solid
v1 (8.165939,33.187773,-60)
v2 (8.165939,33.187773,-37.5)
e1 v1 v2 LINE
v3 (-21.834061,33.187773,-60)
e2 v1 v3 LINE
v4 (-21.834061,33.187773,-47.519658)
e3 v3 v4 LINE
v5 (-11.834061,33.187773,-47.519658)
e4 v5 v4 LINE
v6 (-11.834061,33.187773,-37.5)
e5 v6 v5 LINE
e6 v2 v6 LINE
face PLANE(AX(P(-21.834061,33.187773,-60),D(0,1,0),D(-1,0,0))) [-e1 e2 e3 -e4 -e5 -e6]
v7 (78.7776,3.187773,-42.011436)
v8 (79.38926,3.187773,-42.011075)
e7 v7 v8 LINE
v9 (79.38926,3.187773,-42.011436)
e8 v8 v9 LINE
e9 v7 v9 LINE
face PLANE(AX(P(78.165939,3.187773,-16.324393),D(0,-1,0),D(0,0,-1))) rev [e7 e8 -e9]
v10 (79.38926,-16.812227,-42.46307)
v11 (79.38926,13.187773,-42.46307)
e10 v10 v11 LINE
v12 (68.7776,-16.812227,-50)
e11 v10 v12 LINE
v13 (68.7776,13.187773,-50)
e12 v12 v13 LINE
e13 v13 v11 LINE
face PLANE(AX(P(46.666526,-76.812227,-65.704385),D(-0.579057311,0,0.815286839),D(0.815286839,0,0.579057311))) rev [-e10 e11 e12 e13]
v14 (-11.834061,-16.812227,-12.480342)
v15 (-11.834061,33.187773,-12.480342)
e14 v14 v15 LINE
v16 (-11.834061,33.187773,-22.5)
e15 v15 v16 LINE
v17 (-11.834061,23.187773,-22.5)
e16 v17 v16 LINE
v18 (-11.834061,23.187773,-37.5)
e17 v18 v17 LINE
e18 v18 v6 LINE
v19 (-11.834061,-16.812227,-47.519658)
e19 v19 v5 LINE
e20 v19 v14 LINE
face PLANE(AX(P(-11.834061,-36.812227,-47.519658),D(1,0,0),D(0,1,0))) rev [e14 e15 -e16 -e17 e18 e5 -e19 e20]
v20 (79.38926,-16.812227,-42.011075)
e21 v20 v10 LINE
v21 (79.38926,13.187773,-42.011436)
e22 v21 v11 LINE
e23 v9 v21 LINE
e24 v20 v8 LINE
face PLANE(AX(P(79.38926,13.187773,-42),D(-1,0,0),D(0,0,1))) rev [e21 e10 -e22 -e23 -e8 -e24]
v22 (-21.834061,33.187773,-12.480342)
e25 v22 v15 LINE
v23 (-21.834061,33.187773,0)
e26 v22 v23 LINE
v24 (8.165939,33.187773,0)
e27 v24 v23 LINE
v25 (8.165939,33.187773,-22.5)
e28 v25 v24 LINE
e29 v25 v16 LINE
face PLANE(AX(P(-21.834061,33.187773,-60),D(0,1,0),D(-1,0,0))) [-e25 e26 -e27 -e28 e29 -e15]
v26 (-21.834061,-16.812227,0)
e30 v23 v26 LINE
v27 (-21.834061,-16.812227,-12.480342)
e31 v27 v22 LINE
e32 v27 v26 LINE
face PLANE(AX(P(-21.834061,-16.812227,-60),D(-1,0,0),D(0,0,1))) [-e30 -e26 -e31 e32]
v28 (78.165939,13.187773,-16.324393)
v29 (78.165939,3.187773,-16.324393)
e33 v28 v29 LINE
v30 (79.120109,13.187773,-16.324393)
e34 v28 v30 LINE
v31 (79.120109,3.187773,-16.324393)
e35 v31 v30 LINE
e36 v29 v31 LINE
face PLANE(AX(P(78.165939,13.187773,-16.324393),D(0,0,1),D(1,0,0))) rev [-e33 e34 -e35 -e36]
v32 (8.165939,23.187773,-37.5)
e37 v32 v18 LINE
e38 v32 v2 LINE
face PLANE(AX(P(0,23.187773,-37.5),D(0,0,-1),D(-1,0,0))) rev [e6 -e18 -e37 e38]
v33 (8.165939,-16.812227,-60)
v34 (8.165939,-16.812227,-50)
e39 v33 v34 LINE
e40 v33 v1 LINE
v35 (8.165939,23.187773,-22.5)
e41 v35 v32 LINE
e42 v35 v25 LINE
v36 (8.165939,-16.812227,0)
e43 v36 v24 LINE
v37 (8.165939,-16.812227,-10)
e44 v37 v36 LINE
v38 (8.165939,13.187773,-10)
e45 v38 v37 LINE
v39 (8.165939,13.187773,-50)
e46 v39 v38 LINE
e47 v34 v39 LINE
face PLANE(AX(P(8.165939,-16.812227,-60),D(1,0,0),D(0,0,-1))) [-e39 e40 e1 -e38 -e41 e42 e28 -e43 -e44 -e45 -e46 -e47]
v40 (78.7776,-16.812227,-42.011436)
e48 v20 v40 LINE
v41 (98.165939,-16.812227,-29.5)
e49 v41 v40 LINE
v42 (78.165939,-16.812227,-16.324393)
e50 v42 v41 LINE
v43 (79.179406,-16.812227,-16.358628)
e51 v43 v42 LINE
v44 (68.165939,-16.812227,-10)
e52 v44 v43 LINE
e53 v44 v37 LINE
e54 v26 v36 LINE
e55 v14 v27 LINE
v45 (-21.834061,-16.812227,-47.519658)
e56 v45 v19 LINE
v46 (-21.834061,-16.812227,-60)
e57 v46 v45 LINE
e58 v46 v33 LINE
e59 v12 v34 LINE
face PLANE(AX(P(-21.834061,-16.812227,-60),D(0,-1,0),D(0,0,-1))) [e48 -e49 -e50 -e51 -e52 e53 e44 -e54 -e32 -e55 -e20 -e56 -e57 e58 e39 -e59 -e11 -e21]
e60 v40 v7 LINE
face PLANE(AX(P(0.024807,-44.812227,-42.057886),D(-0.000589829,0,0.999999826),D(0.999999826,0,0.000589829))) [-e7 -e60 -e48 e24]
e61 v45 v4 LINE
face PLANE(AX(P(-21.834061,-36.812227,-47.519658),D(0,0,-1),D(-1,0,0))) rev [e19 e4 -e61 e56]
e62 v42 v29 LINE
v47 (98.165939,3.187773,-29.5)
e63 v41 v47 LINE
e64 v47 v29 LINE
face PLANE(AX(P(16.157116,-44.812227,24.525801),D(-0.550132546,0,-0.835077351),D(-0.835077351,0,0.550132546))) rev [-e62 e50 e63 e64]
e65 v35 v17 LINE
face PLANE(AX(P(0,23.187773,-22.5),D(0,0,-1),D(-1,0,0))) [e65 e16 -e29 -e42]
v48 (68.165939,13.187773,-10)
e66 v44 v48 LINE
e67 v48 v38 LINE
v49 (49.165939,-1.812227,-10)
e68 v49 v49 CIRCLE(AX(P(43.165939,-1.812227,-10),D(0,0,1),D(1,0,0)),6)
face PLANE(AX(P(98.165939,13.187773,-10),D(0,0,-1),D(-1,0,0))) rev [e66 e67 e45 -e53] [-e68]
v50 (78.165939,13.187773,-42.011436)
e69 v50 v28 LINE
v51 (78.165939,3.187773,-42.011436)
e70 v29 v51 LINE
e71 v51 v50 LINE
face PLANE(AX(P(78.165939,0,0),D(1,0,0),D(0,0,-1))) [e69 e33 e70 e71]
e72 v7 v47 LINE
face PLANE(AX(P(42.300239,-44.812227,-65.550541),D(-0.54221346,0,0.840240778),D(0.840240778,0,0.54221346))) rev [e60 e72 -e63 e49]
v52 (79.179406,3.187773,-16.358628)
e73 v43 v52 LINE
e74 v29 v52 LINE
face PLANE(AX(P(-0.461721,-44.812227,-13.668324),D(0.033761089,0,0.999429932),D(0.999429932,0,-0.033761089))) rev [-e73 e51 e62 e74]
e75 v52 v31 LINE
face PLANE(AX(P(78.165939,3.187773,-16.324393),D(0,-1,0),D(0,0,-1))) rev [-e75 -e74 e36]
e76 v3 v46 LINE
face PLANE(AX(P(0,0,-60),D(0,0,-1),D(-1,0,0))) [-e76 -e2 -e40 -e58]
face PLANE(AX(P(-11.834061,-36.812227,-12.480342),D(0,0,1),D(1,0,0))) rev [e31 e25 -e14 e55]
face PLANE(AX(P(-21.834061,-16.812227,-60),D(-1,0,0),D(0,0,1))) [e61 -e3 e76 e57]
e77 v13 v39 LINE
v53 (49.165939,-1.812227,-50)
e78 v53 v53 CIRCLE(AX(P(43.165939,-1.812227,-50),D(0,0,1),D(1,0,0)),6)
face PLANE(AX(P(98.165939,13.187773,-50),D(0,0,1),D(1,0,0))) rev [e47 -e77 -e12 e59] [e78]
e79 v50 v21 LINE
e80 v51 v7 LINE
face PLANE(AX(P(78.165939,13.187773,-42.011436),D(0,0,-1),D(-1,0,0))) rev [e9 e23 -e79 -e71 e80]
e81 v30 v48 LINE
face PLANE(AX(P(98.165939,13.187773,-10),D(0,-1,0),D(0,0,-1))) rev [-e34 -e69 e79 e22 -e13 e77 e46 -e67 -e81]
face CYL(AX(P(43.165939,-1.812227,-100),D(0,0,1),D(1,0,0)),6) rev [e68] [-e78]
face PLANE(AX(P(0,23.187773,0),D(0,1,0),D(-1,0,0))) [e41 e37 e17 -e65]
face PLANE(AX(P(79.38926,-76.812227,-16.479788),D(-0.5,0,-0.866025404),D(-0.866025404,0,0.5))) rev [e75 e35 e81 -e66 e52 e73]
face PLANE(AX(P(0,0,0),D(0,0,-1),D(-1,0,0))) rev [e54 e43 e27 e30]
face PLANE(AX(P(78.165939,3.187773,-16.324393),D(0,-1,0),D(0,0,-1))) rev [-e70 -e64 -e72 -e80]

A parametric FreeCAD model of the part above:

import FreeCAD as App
import Part
import Sketcher
Q = App.Units.Quantity

doc = App.newDocument("Part")
body = doc.addObject("PartDesign::Body", "Body")

sketch1 = body.newObject("Sketcher::SketchObject", "Sketch")
sketch1.AttachmentSupport = (doc.getObject("XY_Plane"), [""])
sketch1.MapMode = "FlatFace"
sketch1.addGeometry([
    Part.LineSegment(App.Vector(-21.834061, 33.187773, 0), App.Vector(-21.834061, -16.812227, 0)),
    Part.LineSegment(App.Vector(-21.834061, -16.812227, 0), App.Vector(8.165939, -16.812227, 0)),
    Part.LineSegment(App.Vector(8.165939, -16.812227, 0), App.Vector(8.165939, 33.187773, 0)),
    Part.LineSegment(App.Vector(8.165939, 33.187773, 0), App.Vector(-21.834061, 33.187773, 0)),
], False)
sketch1.addConstraint([
    Sketcher.Constraint("Coincident", 0, 2, 1, 1),
    Sketcher.Constraint("Coincident", 1, 2, 2, 1),
    Sketcher.Constraint("Coincident", 2, 2, 3, 1),
    Sketcher.Constraint("Coincident", 3, 2, 0, 1),
    Sketcher.Constraint("Vertical", 0),
    Sketcher.Constraint("Horizontal", 1),
    Sketcher.Constraint("Vertical", 2),
    Sketcher.Constraint("Horizontal", 3),
    Sketcher.Constraint("DistanceX", 1, 1, 1, 2, 30.0),
    Sketcher.Constraint("DistanceY", 0, 2, 0, 1, 50.0),
    Sketcher.Constraint("DistanceX", 0, 2, -1, 1, 21.834061),
    Sketcher.Constraint("DistanceY", 0, 2, -1, 1, 16.812227),
])
pad1 = body.newObject("PartDesign::Pad", "Pad")
pad1.Profile = sketch1
pad1.Length = 60
pad1.Reversed = True

sketch2 = body.newObject("Sketcher::SketchObject", "Sketch001")
sketch2.AttachmentSupport = (doc.getObject("YZ_Plane"), [""])
sketch2.MapMode = "FlatFace"
sketch2.AttachmentOffset = App.Placement(App.Vector(0, 0, 8.165939), App.Rotation())
sketch2.addGeometry([
    Part.LineSegment(App.Vector(13.187773, -10, 0), App.Vector(-16.812227, -10, 0)),
    Part.LineSegment(App.Vector(-16.812227, -10, 0), App.Vector(-16.812227, -50, 0)),
    Part.LineSegment(App.Vector(-16.812227, -50, 0), App.Vector(13.187773, -50, 0)),
    Part.LineSegment(App.Vector(13.187773, -50, 0), App.Vector(13.187773, -10, 0)),
], False)
sketch2.addConstraint([
    Sketcher.Constraint("Coincident", 0, 2, 1, 1),
    Sketcher.Constraint("Coincident", 1, 2, 2, 1),
    Sketcher.Constraint("Coincident", 2, 2, 3, 1),
    Sketcher.Constraint("Coincident", 3, 2, 0, 1),
    Sketcher.Constraint("Horizontal", 0),
    Sketcher.Constraint("Vertical", 1),
    Sketcher.Constraint("Horizontal", 2),
    Sketcher.Constraint("Vertical", 3),
    Sketcher.Constraint("DistanceX", 0, 2, 0, 1, 30.0),
    Sketcher.Constraint("DistanceY", 1, 2, 1, 1, 40.0),
    Sketcher.Constraint("DistanceY", 0, 2, -1, 1, 10.0),
    Sketcher.Constraint("DistanceX", 0, 2, -1, 1, 16.812227),
])
pad2 = body.newObject("PartDesign::Pad", "Pad001")
pad2.Profile = sketch2
pad2.Length = 90

sketch3 = body.newObject("Sketcher::SketchObject", "Sketch002")
sketch3.AttachmentSupport = (doc.getObject("XY_Plane"), [""])
sketch3.MapMode = "FlatFace"
sketch3.AttachmentOffset = App.Placement(App.Vector(0, 0, -10), App.Rotation())
sketch3.addGeometry(Part.Circle(App.Vector(43.165939, -1.812227, 0), App.Vector(0, 0, 1), 6), False)
sketch3.addConstraint([
    Sketcher.Constraint("Diameter", 0, 12.0),
    Sketcher.Constraint("DistanceX", -1, 1, 0, 3, 43.165939),
    Sketcher.Constraint("DistanceY", 0, 3, -1, 1, 1.812227),
])
pocket1 = body.newObject("PartDesign::Pocket", "Pocket")
pocket1.Profile = sketch3
pocket1.Length = 90

sketch4 = body.newObject("Sketcher::SketchObject", "Sketch003")
sketch4.AttachmentSupport = (doc.getObject("XZ_Plane"), [""])
sketch4.MapMode = "FlatFace"
sketch4.AttachmentOffset = App.Placement(App.Vector(0, 0, -13.187773), App.Rotation())
sketch4.addGeometry([
    Part.LineSegment(App.Vector(79.38926, -50, 0), App.Vector(68.7776, -50, 0)),
    Part.LineSegment(App.Vector(68.7776, -50, 0), App.Vector(79.38926, -42.46307, 0)),
    Part.LineSegment(App.Vector(79.38926, -42.46307, 0), App.Vector(79.38926, -50, 0)),
    Part.LineSegment(App.Vector(79.38926, -16.479788, 0), App.Vector(68.165939, -10, 0)),
    Part.LineSegment(App.Vector(68.165939, -10, 0), App.Vector(79.38926, -10, 0)),
    Part.LineSegment(App.Vector(79.38926, -10, 0), App.Vector(79.38926, -16.479788, 0)),
], False)
sketch4.addConstraint([
    Sketcher.Constraint("Coincident", 0, 2, 1, 1),
    Sketcher.Constraint("Coincident", 1, 2, 2, 1),
    Sketcher.Constraint("Coincident", 2, 2, 0, 1),
    Sketcher.Constraint("Coincident", 3, 2, 4, 1),
    Sketcher.Constraint("Coincident", 4, 2, 5, 1),
    Sketcher.Constraint("Coincident", 5, 2, 3, 1),
    Sketcher.Constraint("Horizontal", 0),
    Sketcher.Constraint("Vertical", 2),
    Sketcher.Constraint("Horizontal", 4),
    Sketcher.Constraint("Vertical", 5),
    Sketcher.Constraint("Vertical", 2, 2, 4, 2),
    Sketcher.Constraint("Angle", 3, Q("150 deg")),
    Sketcher.Constraint("DistanceY", 0, 2, -1, 1, 50.0),
    Sketcher.Constraint("DistanceY", 3, 2, -1, 1, 10.0),
    Sketcher.Constraint("DistanceX", 0, 2, 0, 1, 10.611661),
    Sketcher.Constraint("DistanceX", 4, 1, 4, 2, 11.223321),
    Sketcher.Constraint("DistanceY", 2, 2, 2, 1, 7.53693),
    Sketcher.Constraint("DistanceX", -1, 1, 0, 2, 68.7776),
])
pocket2 = body.newObject("PartDesign::Pocket", "Pocket001")
pocket2.Profile = sketch4
pocket2.Length = 90
pocket2.Reversed = True

sketch5 = body.newObject("Sketcher::SketchObject", "Sketch004")
sketch5.AttachmentSupport = (doc.getObject("YZ_Plane"), [""])
sketch5.MapMode = "FlatFace"
sketch5.AttachmentOffset = App.Placement(App.Vector(0, 0, 98.165939), App.Rotation())
sketch5.addGeometry([
    Part.LineSegment(App.Vector(13.187773, -16.324393, 0), App.Vector(3.187773, -16.324393, 0)),
    Part.LineSegment(App.Vector(3.187773, -16.324393, 0), App.Vector(3.187773, -42.011436, 0)),
    Part.LineSegment(App.Vector(3.187773, -42.011436, 0), App.Vector(13.187773, -42.011436, 0)),
    Part.LineSegment(App.Vector(13.187773, -42.011436, 0), App.Vector(13.187773, -16.324393, 0)),
], False)
sketch5.addConstraint([
    Sketcher.Constraint("Coincident", 0, 2, 1, 1),
    Sketcher.Constraint("Coincident", 1, 2, 2, 1),
    Sketcher.Constraint("Coincident", 2, 2, 3, 1),
    Sketcher.Constraint("Coincident", 3, 2, 0, 1),
    Sketcher.Constraint("Horizontal", 0),
    Sketcher.Constraint("Vertical", 1),
    Sketcher.Constraint("Horizontal", 2),
    Sketcher.Constraint("Vertical", 3),
    Sketcher.Constraint("DistanceX", 0, 2, 0, 1, 10.0),
    Sketcher.Constraint("DistanceY", 1, 2, 1, 1, 25.687043),
    Sketcher.Constraint("DistanceX", -1, 1, 0, 2, 3.187773),
    Sketcher.Constraint("DistanceY", 0, 2, -1, 1, 16.324393),
])
pocket3 = body.newObject("PartDesign::Pocket", "Pocket002")
pocket3.Profile = sketch5
pocket3.Length = 20

sketch6 = body.newObject("Sketcher::SketchObject", "Sketch005")
sketch6.AttachmentSupport = (doc.getObject("XY_Plane"), [""])
sketch6.MapMode = "FlatFace"
sketch6.AttachmentOffset = App.Placement(App.Vector(0, 0, -10), App.Rotation())
sketch6.addGeometry([
    Part.LineSegment(App.Vector(79.38926, 13.187773, 0), App.Vector(79.38926, -16.812227, 0)),
    Part.LineSegment(App.Vector(79.38926, -16.812227, 0), App.Vector(98.165939, -16.812227, 0)),
    Part.LineSegment(App.Vector(98.165939, -16.812227, 0), App.Vector(98.165939, 13.187773, 0)),
    Part.LineSegment(App.Vector(98.165939, 13.187773, 0), App.Vector(79.38926, 13.187773, 0)),
], False)
sketch6.addConstraint([
    Sketcher.Constraint("Coincident", 0, 2, 1, 1),
    Sketcher.Constraint("Coincident", 1, 2, 2, 1),
    Sketcher.Constraint("Coincident", 2, 2, 3, 1),
    Sketcher.Constraint("Coincident", 3, 2, 0, 1),
    Sketcher.Constraint("Vertical", 0),
    Sketcher.Constraint("Horizontal", 1),
    Sketcher.Constraint("Vertical", 2),
    Sketcher.Constraint("Horizontal", 3),
    Sketcher.Constraint("DistanceY", 0, 2, 0, 1, 30.0),
    Sketcher.Constraint("DistanceX", 1, 1, 1, 2, 18.776679),
    Sketcher.Constraint("DistanceX", -1, 1, 0, 2, 79.38926),
    Sketcher.Constraint("DistanceY", 0, 2, -1, 1, 16.812227),
])
pocket4 = body.newObject("PartDesign::Pocket", "Pocket003")
pocket4.Profile = sketch6
pocket4.Length = 6

sketch7 = body.newObject("Sketcher::SketchObject", "Sketch006")
sketch7.AttachmentSupport = (doc.getObject("XY_Plane"), [""])
sketch7.MapMode = "FlatFace"
sketch7.AttachmentOffset = App.Placement(App.Vector(0, 0, -16), App.Rotation())
sketch7.addGeometry([
    Part.LineSegment(App.Vector(79.38926, 13.187773, 0), App.Vector(79.38926, -16.812227, 0)),
    Part.LineSegment(App.Vector(79.38926, -16.812227, 0), App.Vector(98.165939, -16.812227, 0)),
    Part.LineSegment(App.Vector(98.165939, -16.812227, 0), App.Vector(98.165939, 13.187773, 0)),
    Part.LineSegment(App.Vector(98.165939, 13.187773, 0), App.Vector(79.38926, 13.187773, 0)),
], False)
sketch7.addConstraint([
    Sketcher.Constraint("Coincident", 0, 2, 1, 1),
    Sketcher.Constraint("Coincident", 1, 2, 2, 1),
    Sketcher.Constraint("Coincident", 2, 2, 3, 1),
    Sketcher.Constraint("Coincident", 3, 2, 0, 1),
    Sketcher.Constraint("Vertical", 0),
    Sketcher.Constraint("Horizontal", 1),
    Sketcher.Constraint("Vertical", 2),
    Sketcher.Constraint("Horizontal", 3),
    Sketcher.Constraint("DistanceY", 0, 2, 0, 1, 30.0),
    Sketcher.Constraint("DistanceX", 1, 1, 1, 2, 18.776679),
    Sketcher.Constraint("DistanceX", -1, 1, 0, 2, 79.38926),
    Sketcher.Constraint("DistanceY", 0, 2, -1, 1, 16.812227),
])
pocket5 = body.newObject("PartDesign::Pocket", "Pocket004")
pocket5.Profile = sketch7
pocket5.Length = 1

sketch8 = body.newObject("Sketcher::SketchObject", "Sketch007")
sketch8.AttachmentSupport = (doc.getObject("XY_Plane"), [""])
sketch8.MapMode = "FlatFace"
sketch8.AttachmentOffset = App.Placement(App.Vector(0, 0, -50), App.Rotation())
sketch8.addGeometry([
    Part.LineSegment(App.Vector(98.165939, 13.187773, 0), App.Vector(98.165939, -16.812227, 0)),
    Part.LineSegment(App.Vector(98.165939, -16.812227, 0), App.Vector(79.38926, -16.812227, 0)),
    Part.LineSegment(App.Vector(79.38926, -16.812227, 0), App.Vector(79.38926, 13.187773, 0)),
    Part.LineSegment(App.Vector(79.38926, 13.187773, 0), App.Vector(98.165939, 13.187773, 0)),
], False)
sketch8.addConstraint([
    Sketcher.Constraint("Coincident", 0, 2, 1, 1),
    Sketcher.Constraint("Coincident", 1, 2, 2, 1),
    Sketcher.Constraint("Coincident", 2, 2, 3, 1),
    Sketcher.Constraint("Coincident", 3, 2, 0, 1),
    Sketcher.Constraint("Vertical", 0),
    Sketcher.Constraint("Horizontal", 1),
    Sketcher.Constraint("Vertical", 2),
    Sketcher.Constraint("Horizontal", 3),
    Sketcher.Constraint("DistanceY", 0, 2, 0, 1, 30.0),
    Sketcher.Constraint("DistanceX", 1, 2, 1, 1, 18.776679),
    Sketcher.Constraint("DistanceX", -1, 1, 0, 2, 98.165939),
    Sketcher.Constraint("DistanceY", 0, 2, -1, 1, 16.812227),
])
pocket6 = body.newObject("PartDesign::Pocket", "Pocket005")
pocket6.Profile = sketch8
pocket6.Length = 8
pocket6.Reversed = True

sketch9 = body.newObject("Sketcher::SketchObject", "Sketch008")
sketch9.AttachmentSupport = (doc.getObject("XZ_Plane"), [""])
sketch9.MapMode = "FlatFace"
sketch9.AttachmentOffset = App.Placement(App.Vector(0, 0, -3.187773), App.Rotation())
sketch9.addGeometry([
    Part.LineSegment(App.Vector(98.165939, -17, 0), App.Vector(98.165939, -29.5, 0)),
    Part.LineSegment(App.Vector(98.165939, -29.5, 0), App.Vector(78.165939, -16.324393, 0)),
    Part.LineSegment(App.Vector(78.165939, -16.324393, 0), App.Vector(79.179406, -16.358628, 0)),
    Part.LineSegment(App.Vector(79.179406, -16.358628, 0), App.Vector(79.38926, -16.479788, 0)),
    Part.LineSegment(App.Vector(79.38926, -16.479788, 0), App.Vector(79.38926, -17, 0)),
    Part.LineSegment(App.Vector(79.38926, -17, 0), App.Vector(98.165939, -17, 0)),
    Part.LineSegment(App.Vector(79.38926, -42.011075, 0), App.Vector(78.7776, -42.011436, 0)),
    Part.LineSegment(App.Vector(78.7776, -42.011436, 0), App.Vector(98.165939, -29.5, 0)),
    Part.LineSegment(App.Vector(98.165939, -29.5, 0), App.Vector(98.165939, -42, 0)),
    Part.LineSegment(App.Vector(98.165939, -42, 0), App.Vector(79.38926, -42, 0)),
    Part.LineSegment(App.Vector(79.38926, -42, 0), App.Vector(79.38926, -42.011075, 0)),
], False)
sketch9.addConstraint([
    Sketcher.Constraint("Coincident", 0, 2, 1, 1),
    Sketcher.Constraint("Coincident", 1, 2, 2, 1),
    Sketcher.Constraint("Coincident", 2, 2, 3, 1),
    Sketcher.Constraint("Coincident", 3, 2, 4, 1),
    Sketcher.Constraint("Coincident", 4, 2, 5, 1),
    Sketcher.Constraint("Coincident", 5, 2, 0, 1),
    Sketcher.Constraint("Coincident", 6, 2, 7, 1),
    Sketcher.Constraint("Coincident", 7, 2, 8, 1),
    Sketcher.Constraint("Coincident", 8, 2, 9, 1),
    Sketcher.Constraint("Coincident", 9, 2, 10, 1),
    Sketcher.Constraint("Coincident", 10, 2, 6, 1),
    Sketcher.Constraint("Vertical", 0),
    Sketcher.Constraint("Vertical", 4),
    Sketcher.Constraint("Horizontal", 5),
    Sketcher.Constraint("Vertical", 8),
    Sketcher.Constraint("Horizontal", 9),
    Sketcher.Constraint("Vertical", 10),
    Sketcher.Constraint("Coincident", 7, 2, 0, 2),
    Sketcher.Constraint("Vertical", 4, 2, 9, 2),
    Sketcher.Constraint("Equal", 0, 8),
    Sketcher.Constraint("Angle", 3, Q("-30 deg")),
    Sketcher.Constraint("DistanceY", 0, 2, 0, 1, 12.5),
    Sketcher.Constraint("DistanceY", 4, 2, -1, 1, 17.0),
    Sketcher.Constraint("DistanceX", 1, 2, 0, 2, 20.0),
    Sketcher.Constraint("DistanceX", 5, 1, 5, 2, 18.776679),
    Sketcher.Constraint("DistanceX", -1, 1, 6, 2, 78.7776),
    Sketcher.Constraint("Distance", 3, 0.242318),
    Sketcher.Constraint("Distance", 6, 0.611661),
    Sketcher.Constraint("DistanceY", 4, 2, 4, 1, 0.520212),
    Sketcher.Constraint("DistanceY", 10, 2, 10, 1, 0.011075),
    Sketcher.Constraint("DistanceY", 6, 2, 3, 2, 25.531648),
    Sketcher.Constraint("Distance", 1, 23.949877),
])
pocket7 = body.newObject("PartDesign::Pocket", "Pocket006")
pocket7.Profile = sketch9
pocket7.Length = 48
pocket7.Reversed = True

sketch10 = body.newObject("Sketcher::SketchObject", "Sketch009")
sketch10.AttachmentSupport = (doc.getObject("XZ_Plane"), [""])
sketch10.MapMode = "FlatFace"
sketch10.AttachmentOffset = App.Placement(App.Vector(0, 0, -33.187773), App.Rotation())
sketch10.addGeometry([
    Part.LineSegment(App.Vector(-11.834061, -37.5, 0), App.Vector(-11.834061, -22.5, 0)),
    Part.LineSegment(App.Vector(-11.834061, -22.5, 0), App.Vector(8.165939, -22.5, 0)),
    Part.LineSegment(App.Vector(8.165939, -22.5, 0), App.Vector(8.165939, -37.5, 0)),
    Part.LineSegment(App.Vector(8.165939, -37.5, 0), App.Vector(-11.834061, -37.5, 0)),
], False)
sketch10.addConstraint([
    Sketcher.Constraint("Coincident", 0, 2, 1, 1),
    Sketcher.Constraint("Coincident", 1, 2, 2, 1),
    Sketcher.Constraint("Coincident", 2, 2, 3, 1),
    Sketcher.Constraint("Coincident", 3, 2, 0, 1),
    Sketcher.Constraint("Vertical", 0),
    Sketcher.Constraint("Horizontal", 1),
    Sketcher.Constraint("Vertical", 2),
    Sketcher.Constraint("Horizontal", 3),
    Sketcher.Constraint("DistanceX", 1, 1, 1, 2, 20.0),
    Sketcher.Constraint("DistanceY", 0, 1, 0, 2, 15.0),
    Sketcher.Constraint("DistanceY", 0, 2, -1, 1, 22.5),
    Sketcher.Constraint("DistanceX", 0, 2, -1, 1, 11.834061),
])
pocket8 = body.newObject("PartDesign::Pocket", "Pocket007")
pocket8.Profile = sketch10
pocket8.Length = 10
pocket8.Reversed = True

sketch11 = body.newObject("Sketcher::SketchObject", "Sketch010")
sketch11.AttachmentSupport = (doc.getObject("XZ_Plane"), [""])
sketch11.MapMode = "FlatFace"
sketch11.AttachmentOffset = App.Placement(App.Vector(0, 0, -33.187773), App.Rotation())
sketch11.addGeometry([
    Part.LineSegment(App.Vector(-21.834061, -47.519658, 0), App.Vector(-21.834061, -12.480342, 0)),
    Part.LineSegment(App.Vector(-21.834061, -12.480342, 0), App.Vector(-11.834061, -12.480342, 0)),
    Part.LineSegment(App.Vector(-11.834061, -12.480342, 0), App.Vector(-11.834061, -47.519658, 0)),
    Part.LineSegment(App.Vector(-11.834061, -47.519658, 0), App.Vector(-21.834061, -47.519658, 0)),
], False)
sketch11.addConstraint([
    Sketcher.Constraint("Coincident", 0, 2, 1, 1),
    Sketcher.Constraint("Coincident", 1, 2, 2, 1),
    Sketcher.Constraint("Coincident", 2, 2, 3, 1),
    Sketcher.Constraint("Coincident", 3, 2, 0, 1),
    Sketcher.Constraint("Vertical", 0),
    Sketcher.Constraint("Horizontal", 1),
    Sketcher.Constraint("Vertical", 2),
    Sketcher.Constraint("Horizontal", 3),
    Sketcher.Constraint("DistanceX", 1, 1, 1, 2, 10.0),
    Sketcher.Constraint("DistanceY", 0, 1, 0, 2, 35.039315),
    Sketcher.Constraint("DistanceX", 0, 2, -1, 1, 21.834061),
    Sketcher.Constraint("DistanceY", 0, 2, -1, 1, 12.480342),
])
pocket9 = body.newObject("PartDesign::Pocket", "Pocket008")
pocket9.Profile = sketch11
pocket9.Length = 70
pocket9.Reversed = True

doc.recompute()
